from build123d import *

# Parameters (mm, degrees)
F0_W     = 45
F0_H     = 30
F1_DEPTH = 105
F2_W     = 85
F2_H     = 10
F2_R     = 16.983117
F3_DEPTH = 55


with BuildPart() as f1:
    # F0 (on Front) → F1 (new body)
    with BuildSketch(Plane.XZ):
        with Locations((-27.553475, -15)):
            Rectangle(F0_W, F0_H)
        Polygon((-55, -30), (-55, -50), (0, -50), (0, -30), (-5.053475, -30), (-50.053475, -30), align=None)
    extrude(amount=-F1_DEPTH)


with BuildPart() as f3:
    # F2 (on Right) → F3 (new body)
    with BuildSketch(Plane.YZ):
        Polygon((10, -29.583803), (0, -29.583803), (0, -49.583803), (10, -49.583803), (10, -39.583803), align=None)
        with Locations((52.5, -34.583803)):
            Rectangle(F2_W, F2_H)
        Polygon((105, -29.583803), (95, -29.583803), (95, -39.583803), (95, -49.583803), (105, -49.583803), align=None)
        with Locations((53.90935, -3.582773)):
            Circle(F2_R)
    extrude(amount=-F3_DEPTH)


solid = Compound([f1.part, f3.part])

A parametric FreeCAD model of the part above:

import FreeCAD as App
import Part
import Sketcher


def add_polygon(sketch, points):
    """Adds a closed chain of lines whose ends are joined by coincident constraints."""
    first, n = sketch.GeometryCount, len(points)
    for a, b in zip(points, points[1:] + points[:1]):
        sketch.addGeometry(Part.LineSegment(App.Vector(*a, 0), App.Vector(*b, 0)), False)
    for i in range(n):
        sketch.addConstraint(Sketcher.Constraint("Coincident", first + i, 2, first + (i + 1) % n, 1))

doc = App.newDocument("Part")
body = doc.addObject("PartDesign::Body", "Body")

sketch1 = body.newObject("Sketcher::SketchObject", "Sketch")
sketch1.AttachmentSupport = (doc.getObject("XZ_Plane"), [""])
sketch1.MapMode = "FlatFace"
add_polygon(sketch1, [(-50.1, 0), (-50.1, -30), (-55, -30), (-55, -50), (0, -50), (0, -30), (-5.1, -30), (-5.1, 0)])
sketch1.addConstraint([
    Sketcher.Constraint("Vertical", 0),
    Sketcher.Constraint("Horizontal", 1),
    Sketcher.Constraint("Vertical", 2),
    Sketcher.Constraint("Horizontal", 3),
    Sketcher.Constraint("Vertical", 4),
    Sketcher.Constraint("Horizontal", 5),
    Sketcher.Constraint("Vertical", 6),
    Sketcher.Constraint("Horizontal", 7),
    Sketcher.Constraint("PointOnObject", 3, 2, -2),
    Sketcher.Constraint("PointOnObject", 6, 2, -1),
    Sketcher.Constraint("Horizontal", 1, 2, 4, 2),
    Sketcher.Constraint("DistanceX", 3, 1, 3, 2, 55.0),
    Sketcher.Constraint("DistanceX", 7, 2, 7, 1, 45.0),
    Sketcher.Constraint("DistanceY", 0, 2, 0, 1, 30.0),
    Sketcher.Constraint("DistanceY", 2, 2, 2, 1, 20.0),
    Sketcher.Constraint("DistanceX", 1, 2, 1, 1, 4.946525),
])
pad1 = body.newObject("PartDesign::Pad", "Pad")
pad1.Profile = sketch1
pad1.Length = 105
pad1.Reversed = True
body2 = doc.addObject("PartDesign::Body", "Body001")
body2.AllowCompound = True

sketch2 = body2.newObject("Sketcher::SketchObject", "Sketch001")
sketch2.AttachmentSupport = (doc.getObject("YZ_Plane001"), [""])
sketch2.MapMode = "FlatFace"
add_polygon(sketch2, [(0, -30), (0, -50), (10, -50), (10, -40), (95, -40), (95, -50), (105, -50), (105, -30)])
sketch2.addGeometry(Part.Circle(App.Vector(54, -4, 0), App.Vector(0, 0, 1), 17), False)
sketch2.addConstraint([
    Sketcher.Constraint("Vertical", 0),
    Sketcher.Constraint("Horizontal", 1),
    Sketcher.Constraint("Vertical", 2),
    Sketcher.Constraint("Horizontal", 3),
    Sketcher.Constraint("Vertical", 4),
    Sketcher.Constraint("Horizontal", 5),
    Sketcher.Constraint("Vertical", 6),
    Sketcher.Constraint("Horizontal", 7),
    Sketcher.Constraint("PointOnObject", 0, 2, -2),
    Sketcher.Constraint("Horizontal", 1, 2, 4, 2),
    Sketcher.Constraint("Equal", 1, 5),
    Sketcher.Constraint("Equal", 5, 2),
    Sketcher.Constraint("DistanceX", 1, 1, 1, 2, 10.0),
    Sketcher.Constraint("DistanceX", 3, 1, 3, 2, 85.0),
    Sketcher.Constraint("DistanceY", 0, 2, 0, 1, 20.0),
    Sketcher.Constraint("Diameter", 8, 33.966234),
    Sketcher.Constraint("DistanceX", -1, 1, 8, 3, 53.90935),
    Sketcher.Constraint("DistanceY", 0, 2, 8, 3, 46.00103),
    Sketcher.Constraint("DistanceY", 8, 3, -1, 1, 3.582773),
])
pad2 = body2.newObject("PartDesign::Pad", "Pad001")
pad2.Profile = sketch2
pad2.Length = 55
pad2.Reversed = True

doc.recompute()
